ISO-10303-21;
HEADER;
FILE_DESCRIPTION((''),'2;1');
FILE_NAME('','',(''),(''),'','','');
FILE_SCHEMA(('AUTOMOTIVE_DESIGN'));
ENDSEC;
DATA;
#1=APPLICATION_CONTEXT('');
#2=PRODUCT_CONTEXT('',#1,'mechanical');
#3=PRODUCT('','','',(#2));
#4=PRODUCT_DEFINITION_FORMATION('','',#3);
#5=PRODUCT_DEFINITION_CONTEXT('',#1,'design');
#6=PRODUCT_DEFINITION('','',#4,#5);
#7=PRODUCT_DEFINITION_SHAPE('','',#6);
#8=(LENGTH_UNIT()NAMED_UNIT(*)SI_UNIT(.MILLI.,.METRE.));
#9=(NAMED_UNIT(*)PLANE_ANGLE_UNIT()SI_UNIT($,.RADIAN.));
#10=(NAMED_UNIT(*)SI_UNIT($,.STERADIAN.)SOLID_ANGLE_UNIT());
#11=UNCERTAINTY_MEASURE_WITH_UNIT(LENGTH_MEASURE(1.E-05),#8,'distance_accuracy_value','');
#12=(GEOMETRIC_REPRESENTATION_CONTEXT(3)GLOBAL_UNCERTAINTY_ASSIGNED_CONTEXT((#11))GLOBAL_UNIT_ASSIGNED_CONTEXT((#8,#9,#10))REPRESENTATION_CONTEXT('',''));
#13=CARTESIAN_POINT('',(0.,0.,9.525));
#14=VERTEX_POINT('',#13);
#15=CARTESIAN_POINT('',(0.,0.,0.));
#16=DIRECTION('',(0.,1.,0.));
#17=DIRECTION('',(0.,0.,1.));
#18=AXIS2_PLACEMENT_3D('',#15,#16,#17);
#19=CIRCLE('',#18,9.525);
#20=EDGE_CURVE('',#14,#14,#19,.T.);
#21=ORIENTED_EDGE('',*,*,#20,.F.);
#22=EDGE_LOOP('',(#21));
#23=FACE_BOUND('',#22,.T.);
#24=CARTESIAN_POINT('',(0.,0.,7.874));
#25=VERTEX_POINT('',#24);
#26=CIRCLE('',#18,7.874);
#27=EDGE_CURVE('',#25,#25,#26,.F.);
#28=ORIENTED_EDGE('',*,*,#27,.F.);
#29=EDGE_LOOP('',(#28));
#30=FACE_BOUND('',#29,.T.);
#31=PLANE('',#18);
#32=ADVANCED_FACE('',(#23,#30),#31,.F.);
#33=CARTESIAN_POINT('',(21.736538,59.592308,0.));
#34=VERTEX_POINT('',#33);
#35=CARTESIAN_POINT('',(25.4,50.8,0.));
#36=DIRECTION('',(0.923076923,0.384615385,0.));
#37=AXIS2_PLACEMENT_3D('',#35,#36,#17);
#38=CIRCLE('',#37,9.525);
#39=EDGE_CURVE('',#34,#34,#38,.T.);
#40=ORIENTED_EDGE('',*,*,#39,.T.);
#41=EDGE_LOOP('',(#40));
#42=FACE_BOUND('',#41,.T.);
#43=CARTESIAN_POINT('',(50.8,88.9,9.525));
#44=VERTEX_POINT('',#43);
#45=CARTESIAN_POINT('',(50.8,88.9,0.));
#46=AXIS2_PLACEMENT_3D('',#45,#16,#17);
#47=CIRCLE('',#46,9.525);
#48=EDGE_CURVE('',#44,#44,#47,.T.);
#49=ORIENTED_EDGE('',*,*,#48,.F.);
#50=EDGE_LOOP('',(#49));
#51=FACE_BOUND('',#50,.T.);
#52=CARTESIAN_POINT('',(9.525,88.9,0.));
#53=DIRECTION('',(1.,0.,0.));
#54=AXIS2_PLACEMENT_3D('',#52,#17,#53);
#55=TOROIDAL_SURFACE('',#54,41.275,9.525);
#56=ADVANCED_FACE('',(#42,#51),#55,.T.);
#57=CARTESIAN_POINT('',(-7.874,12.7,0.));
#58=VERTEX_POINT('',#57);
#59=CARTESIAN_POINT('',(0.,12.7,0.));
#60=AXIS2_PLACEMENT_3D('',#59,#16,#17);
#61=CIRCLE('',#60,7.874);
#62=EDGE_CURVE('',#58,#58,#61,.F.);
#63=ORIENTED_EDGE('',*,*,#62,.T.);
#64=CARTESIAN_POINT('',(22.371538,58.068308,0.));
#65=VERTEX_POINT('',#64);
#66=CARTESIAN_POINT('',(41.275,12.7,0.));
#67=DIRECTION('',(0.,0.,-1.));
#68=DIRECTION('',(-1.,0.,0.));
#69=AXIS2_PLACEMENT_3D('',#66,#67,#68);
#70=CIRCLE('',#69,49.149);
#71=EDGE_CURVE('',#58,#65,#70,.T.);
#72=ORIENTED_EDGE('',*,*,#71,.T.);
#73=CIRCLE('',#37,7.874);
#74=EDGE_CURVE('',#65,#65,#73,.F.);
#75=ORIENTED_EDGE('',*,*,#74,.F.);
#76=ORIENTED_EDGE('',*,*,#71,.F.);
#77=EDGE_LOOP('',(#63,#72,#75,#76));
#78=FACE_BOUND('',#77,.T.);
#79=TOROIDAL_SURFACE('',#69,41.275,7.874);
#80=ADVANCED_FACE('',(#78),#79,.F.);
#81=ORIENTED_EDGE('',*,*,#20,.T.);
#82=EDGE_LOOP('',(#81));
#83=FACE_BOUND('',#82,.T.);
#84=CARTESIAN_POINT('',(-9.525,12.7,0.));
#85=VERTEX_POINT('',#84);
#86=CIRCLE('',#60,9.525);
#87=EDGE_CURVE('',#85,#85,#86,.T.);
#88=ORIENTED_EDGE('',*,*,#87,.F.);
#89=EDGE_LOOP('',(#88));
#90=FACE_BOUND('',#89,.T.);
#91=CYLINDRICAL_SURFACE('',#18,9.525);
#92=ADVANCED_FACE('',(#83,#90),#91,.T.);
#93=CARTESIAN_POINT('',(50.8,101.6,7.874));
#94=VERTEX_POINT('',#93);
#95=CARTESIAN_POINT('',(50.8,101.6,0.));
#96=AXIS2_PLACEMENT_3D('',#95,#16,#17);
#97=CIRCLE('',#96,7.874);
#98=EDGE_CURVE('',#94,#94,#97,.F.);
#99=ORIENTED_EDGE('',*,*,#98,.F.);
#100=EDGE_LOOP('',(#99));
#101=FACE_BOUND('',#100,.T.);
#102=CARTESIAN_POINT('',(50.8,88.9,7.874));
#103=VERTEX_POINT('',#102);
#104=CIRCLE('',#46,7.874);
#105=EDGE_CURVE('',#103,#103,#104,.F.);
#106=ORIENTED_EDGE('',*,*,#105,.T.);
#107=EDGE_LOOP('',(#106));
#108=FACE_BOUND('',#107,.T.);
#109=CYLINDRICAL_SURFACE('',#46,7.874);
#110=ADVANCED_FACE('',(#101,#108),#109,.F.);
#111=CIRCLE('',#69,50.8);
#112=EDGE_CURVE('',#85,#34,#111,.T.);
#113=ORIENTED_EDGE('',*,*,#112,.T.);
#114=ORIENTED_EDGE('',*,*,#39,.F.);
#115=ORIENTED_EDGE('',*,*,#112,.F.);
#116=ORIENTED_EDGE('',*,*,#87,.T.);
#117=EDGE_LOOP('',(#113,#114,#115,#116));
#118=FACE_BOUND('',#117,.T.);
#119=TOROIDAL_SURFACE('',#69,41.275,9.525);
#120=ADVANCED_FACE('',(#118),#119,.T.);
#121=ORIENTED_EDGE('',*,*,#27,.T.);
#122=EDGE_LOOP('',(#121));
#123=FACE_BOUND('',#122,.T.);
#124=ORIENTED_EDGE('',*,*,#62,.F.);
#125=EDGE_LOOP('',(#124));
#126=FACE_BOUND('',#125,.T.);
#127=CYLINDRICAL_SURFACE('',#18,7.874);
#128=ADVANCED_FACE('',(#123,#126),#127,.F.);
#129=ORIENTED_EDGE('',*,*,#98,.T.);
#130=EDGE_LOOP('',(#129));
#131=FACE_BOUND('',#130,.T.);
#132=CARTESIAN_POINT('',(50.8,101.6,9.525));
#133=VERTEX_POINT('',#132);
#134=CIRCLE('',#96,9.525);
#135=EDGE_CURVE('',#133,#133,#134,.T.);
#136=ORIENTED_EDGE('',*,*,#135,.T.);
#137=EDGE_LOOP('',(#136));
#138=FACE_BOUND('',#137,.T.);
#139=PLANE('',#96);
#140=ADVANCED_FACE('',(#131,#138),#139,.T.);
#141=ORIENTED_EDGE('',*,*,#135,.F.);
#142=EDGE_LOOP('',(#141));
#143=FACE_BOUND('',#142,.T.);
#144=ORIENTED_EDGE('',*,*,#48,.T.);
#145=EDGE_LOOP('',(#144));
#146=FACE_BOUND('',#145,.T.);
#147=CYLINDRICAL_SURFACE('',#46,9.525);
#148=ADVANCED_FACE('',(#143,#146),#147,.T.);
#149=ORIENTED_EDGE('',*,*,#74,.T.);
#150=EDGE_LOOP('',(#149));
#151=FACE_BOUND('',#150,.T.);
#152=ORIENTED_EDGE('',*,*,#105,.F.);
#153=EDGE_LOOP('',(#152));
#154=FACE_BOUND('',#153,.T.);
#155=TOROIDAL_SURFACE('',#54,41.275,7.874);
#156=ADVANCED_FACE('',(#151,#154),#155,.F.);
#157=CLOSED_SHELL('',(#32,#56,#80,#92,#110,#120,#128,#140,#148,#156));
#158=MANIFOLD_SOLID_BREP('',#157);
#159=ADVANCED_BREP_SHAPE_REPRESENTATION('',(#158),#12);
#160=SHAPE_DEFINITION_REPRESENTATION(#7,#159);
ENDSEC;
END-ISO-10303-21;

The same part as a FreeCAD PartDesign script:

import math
import FreeCAD as App
import Part
import Sketcher
Q = App.Units.Quantity

doc = App.newDocument("Part")
body = doc.addObject("PartDesign::Body", "Body")

sketch1 = doc.addObject("Sketcher::SketchObject", "Sketch")
body.addObject(sketch1)
sketch1.AttachmentSupport = (doc.XZ_Plane, [""])
sketch1.MapMode = "FlatFace"
sketch1.addGeometry(Part.Circle(App.Vector(0, 0, 0), App.Vector(0, 0, 1), 9.525), False)
sketch1.addGeometry(Part.Circle(App.Vector(0, 0, 0), App.Vector(0, 0, 1), 7.874), False)
sketch1.addConstraint(Sketcher.Constraint("Coincident", 0, 3, -1, 1))
sketch1.addConstraint(Sketcher.Constraint("Coincident", 1, 3, -1, 1))
sketch1.addConstraint(Sketcher.Constraint("Diameter", 0, Q("0.75 in")))
sketch1.addConstraint(Sketcher.Constraint("Diameter", 1, Q("0.62 in")))

sketch2 = doc.addObject("Sketcher::SketchObject", "Sketch001")
body.addObject(sketch2)
sketch2.AttachmentSupport = (doc.XY_Plane, [""])
sketch2.MapMode = "FlatFace"
sketch2.addGeometry(Part.LineSegment(App.Vector(0, 0, 0), App.Vector(0, 12.7, 0)), False)
sketch2.addGeometry(Part.ArcOfCircle(Part.Circle(App.Vector(41.275, 12.7, 0), App.Vector(0, 0, 1), 41.275), math.radians(112.619865), math.radians(180)), False)
sketch2.addGeometry(Part.ArcOfCircle(Part.Circle(App.Vector(9.525, 88.9, 0), App.Vector(0, 0, 1), 41.275), math.radians(-67.380135), math.radians(0)), False)
sketch2.addGeometry(Part.LineSegment(App.Vector(50.8, 88.9, 0), App.Vector(50.8, 101.6, 0)), False)
sketch2.addConstraint(Sketcher.Constraint("Tangent", 0, 2, 1, 2))
sketch2.addConstraint(Sketcher.Constraint("Tangent", 1, 1, 2, 1))
sketch2.addConstraint(Sketcher.Constraint("Tangent", 2, 2, 3, 1))
sketch2.addConstraint(Sketcher.Constraint("Vertical", 0))
sketch2.addConstraint(Sketcher.Constraint("Vertical", 3))
sketch2.addConstraint(Sketcher.Constraint("Coincident", 0, 1, -1, 1))
sketch2.addConstraint(Sketcher.Constraint("Equal", 1, 2))
sketch2.addConstraint(Sketcher.Constraint("Equal", 0, 3))
sketch2.addConstraint(Sketcher.Constraint("DistanceY", 0, 1, 0, 2, Q("0.5 in")))
sketch2.addConstraint(Sketcher.Constraint("DistanceX", -1, 1, 1, 1, Q("1 in")))
sketch2.addConstraint(Sketcher.Constraint("DistanceY", -1, 1, 1, 1, Q("2 in")))
doc.recompute()

additivepipe = doc.addObject("PartDesign::AdditivePipe", "AdditivePipe")
body.addObject(additivepipe)
additivepipe.Profile = sketch1
additivepipe.Spine = (sketch2, ["Edge1", "Edge2", "Edge3", "Edge4"])

doc.recompute()
